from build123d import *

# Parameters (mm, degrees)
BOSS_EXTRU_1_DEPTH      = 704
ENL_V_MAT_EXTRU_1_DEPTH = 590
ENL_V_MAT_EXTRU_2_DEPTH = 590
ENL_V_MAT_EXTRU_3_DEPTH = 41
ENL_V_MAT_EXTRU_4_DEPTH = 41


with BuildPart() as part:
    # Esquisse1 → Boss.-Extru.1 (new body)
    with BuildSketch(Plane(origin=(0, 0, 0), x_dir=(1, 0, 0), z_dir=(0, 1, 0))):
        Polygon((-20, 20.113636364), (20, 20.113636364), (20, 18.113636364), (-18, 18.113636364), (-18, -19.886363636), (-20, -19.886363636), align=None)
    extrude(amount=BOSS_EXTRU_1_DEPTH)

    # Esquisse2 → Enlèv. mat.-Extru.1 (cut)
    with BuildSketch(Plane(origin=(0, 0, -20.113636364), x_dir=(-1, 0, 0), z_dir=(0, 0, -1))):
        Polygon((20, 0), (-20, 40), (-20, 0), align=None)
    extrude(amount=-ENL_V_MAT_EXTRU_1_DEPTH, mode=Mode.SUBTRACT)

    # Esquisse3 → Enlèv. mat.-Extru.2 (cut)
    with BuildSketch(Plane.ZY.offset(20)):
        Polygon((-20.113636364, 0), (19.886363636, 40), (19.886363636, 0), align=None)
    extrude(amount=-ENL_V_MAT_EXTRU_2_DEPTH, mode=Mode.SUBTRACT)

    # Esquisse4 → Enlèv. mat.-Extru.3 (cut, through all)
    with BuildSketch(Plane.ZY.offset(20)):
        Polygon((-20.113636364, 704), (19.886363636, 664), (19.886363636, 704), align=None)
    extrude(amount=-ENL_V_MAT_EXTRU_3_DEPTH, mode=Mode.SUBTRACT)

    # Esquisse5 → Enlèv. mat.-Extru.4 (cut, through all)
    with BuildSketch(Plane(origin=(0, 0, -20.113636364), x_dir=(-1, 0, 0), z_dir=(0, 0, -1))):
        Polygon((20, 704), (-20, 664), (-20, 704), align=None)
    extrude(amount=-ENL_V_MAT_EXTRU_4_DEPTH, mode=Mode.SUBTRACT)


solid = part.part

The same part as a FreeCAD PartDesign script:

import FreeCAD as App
import Part
import Sketcher
from FreeCAD import Vector
Q = App.Units.Quantity

doc = App.newDocument("Part")
params = doc.addObject("Spreadsheet::Sheet", "Params")
for row, (alias, value) in enumerate([
    ("sketch1_width", "40 mm"),
    ("sketch1_width2", "2 mm"),
    ("pad1_length", "704 mm"),
    ("sketch2_width", "40 mm"),
    ("pocket1_length", "590 mm"),
    ("sketch3_width", "40 mm"),
    ("pocket2_length", "590 mm"),
    ("sketch4_width", "40 mm"),
    ("sketch5_width", "40 mm"),
], start=1):
    params.set(f"A{row}", alias)
    params.set(f"B{row}", "=" + value)
    params.setAlias(f"B{row}", alias)

body = doc.addObject("PartDesign::Body", "Body")

# Sketch on XZ plane
sketch1 = doc.addObject("Sketcher::SketchObject", "Sketch")
body.addObject(sketch1)
sketch1.AttachmentSupport = (doc.XZ_Plane, [""])
sketch1.MapMode = "FlatFace"
sketch1.addGeometry([
    Part.LineSegment(Vector(20, -20.1, 0), Vector(-20, -20.1, 0)),  # 0
    Part.LineSegment(Vector(-20, -20.1, 0), Vector(-20, 19.9, 0)),  # 1
    Part.LineSegment(Vector(-20, 19.9, 0), Vector(-18, 19.9, 0)),  # 2
    Part.LineSegment(Vector(-18, 19.9, 0), Vector(-18, -18.1, 0)),  # 3
    Part.LineSegment(Vector(-18, -18.1, 0), Vector(20, -18.1, 0)),  # 4
    Part.LineSegment(Vector(20, -18.1, 0), Vector(20, -20.1, 0)),  # 5
], False)
sketch1.addConstraint([
    Sketcher.Constraint("Coincident", 0, 2, 1, 1),
    Sketcher.Constraint("Coincident", 1, 2, 2, 1),
    Sketcher.Constraint("Coincident", 2, 2, 3, 1),
    Sketcher.Constraint("Coincident", 3, 2, 4, 1),
    Sketcher.Constraint("Coincident", 4, 2, 5, 1),
    Sketcher.Constraint("Coincident", 5, 2, 0, 1),
    Sketcher.Constraint("Horizontal", 0),
    Sketcher.Constraint("Vertical", 1),
    Sketcher.Constraint("Horizontal", 2),
    Sketcher.Constraint("Vertical", 3),
    Sketcher.Constraint("Horizontal", 4),
    Sketcher.Constraint("Vertical", 5),
    Sketcher.Constraint("Equal", 0, 1),
    Sketcher.Constraint("Equal", 4, 3),
    Sketcher.Constraint("DistanceX", 0, 2, 0, 1, Q("40 mm")),
    Sketcher.Constraint("DistanceX", 2, 1, 2, 2, Q("2 mm")),
    Sketcher.Constraint("DistanceX", 0, 2, -1, 1, Q("20 mm")),
    Sketcher.Constraint("DistanceY", 0, 2, -1, 1, Q("20.113636 mm")),
])
sketch1.setExpression("Constraints[14]", "Params.sketch1_width")
sketch1.setExpression("Constraints[15]", "Params.sketch1_width2")
pad1 = doc.addObject("PartDesign::Pad", "Pad")
body.addObject(pad1)
pad1.Profile = sketch1
pad1.setExpression("Length", "Params.pad1_length")
pad1.Reversed = True

# Sketch on XY plane
sketch2 = doc.addObject("Sketcher::SketchObject", "Sketch001")
body.addObject(sketch2)
sketch2.AttachmentSupport = (doc.XY_Plane, [""])
sketch2.MapMode = "FlatFace"
sketch2.AttachmentOffset = App.Placement(Vector(0, 0, -20.113636), App.Rotation())
sketch2.addGeometry([
    Part.LineSegment(Vector(-20, 0, 0), Vector(20, 40, 0)),
    Part.LineSegment(Vector(20, 40, 0), Vector(20, 0, 0)),
    Part.LineSegment(Vector(20, 0, 0), Vector(-20, 0, 0)),
], False)
sketch2.addConstraint([
    Sketcher.Constraint("Coincident", 0, 2, 1, 1),
    Sketcher.Constraint("Coincident", 1, 2, 2, 1),
    Sketcher.Constraint("Coincident", 2, 2, 0, 1),
    Sketcher.Constraint("Vertical", 1),
    Sketcher.Constraint("Horizontal", 2),
    Sketcher.Constraint("Symmetric", 1, 2, 2, 2, -1, 1),
    Sketcher.Constraint("Equal", 2, 1),
    Sketcher.Constraint("DistanceX", 2, 2, 2, 1, Q("40 mm")),
])
sketch2.setExpression("Constraints[7]", "Params.sketch2_width")
pocket1 = doc.addObject("PartDesign::Pocket", "Pocket")
body.addObject(pocket1)
pocket1.Profile = sketch2
pocket1.setExpression("Length", "Params.pocket1_length")
pocket1.Reversed = True

# Sketch on YZ plane
sketch3 = doc.addObject("Sketcher::SketchObject", "Sketch002")
body.addObject(sketch3)
sketch3.AttachmentSupport = (doc.YZ_Plane, [""])
sketch3.MapMode = "FlatFace"
sketch3.AttachmentOffset = App.Placement(Vector(0, 0, -20), App.Rotation())
sketch3.addGeometry([
    Part.LineSegment(Vector(40, 20, 0), Vector(0, -20, 0)),
    Part.LineSegment(Vector(0, -20, 0), Vector(0, 20, 0)),
    Part.LineSegment(Vector(0, 20, 0), Vector(40, 20, 0)),
], False)
sketch3.addConstraint([
    Sketcher.Constraint("Coincident", 0, 2, 1, 1),
    Sketcher.Constraint("Coincident", 1, 2, 2, 1),
    Sketcher.Constraint("Coincident", 2, 2, 0, 1),
    Sketcher.Constraint("Vertical", 1),
    Sketcher.Constraint("Horizontal", 2),
    Sketcher.Constraint("PointOnObject", 0, 2, -2),
    Sketcher.Constraint("Equal", 2, 1),
    Sketcher.Constraint("DistanceX", 2, 1, 2, 2, Q("40 mm")),
    Sketcher.Constraint("DistanceY", 0, 2, -1, 1, Q("20.113636 mm")),
])
sketch3.setExpression("Constraints[7]", "Params.sketch3_width")
pocket2 = doc.addObject("PartDesign::Pocket", "Pocket001")
body.addObject(pocket2)
pocket2.Profile = sketch3
pocket2.setExpression("Length", "Params.pocket2_length")
pocket2.Reversed = True

# Sketch on YZ plane
sketch4 = doc.addObject("Sketcher::SketchObject", "Sketch003")
body.addObject(sketch4)
sketch4.AttachmentSupport = (doc.YZ_Plane, [""])
sketch4.MapMode = "FlatFace"
sketch4.AttachmentOffset = App.Placement(Vector(0, 0, -20), App.Rotation())
sketch4.addGeometry([
    Part.LineSegment(Vector(704, -20, 0), Vector(664, 20, 0)),
    Part.LineSegment(Vector(664, 20, 0), Vector(704, 20, 0)),
    Part.LineSegment(Vector(704, 20, 0), Vector(704, -20, 0)),
], False)
sketch4.addConstraint([
    Sketcher.Constraint("Coincident", 0, 2, 1, 1),
    Sketcher.Constraint("Coincident", 1, 2, 2, 1),
    Sketcher.Constraint("Coincident", 2, 2, 0, 1),
    Sketcher.Constraint("Horizontal", 1),
    Sketcher.Constraint("Vertical", 2),
    Sketcher.Constraint("Equal", 1, 2),
    Sketcher.Constraint("DistanceX", 1, 1, 1, 2, Q("40 mm")),
    Sketcher.Constraint("DistanceX", -1, 1, 0, 2, Q("664 mm")),
    Sketcher.Constraint("DistanceY", -1, 1, 0, 2, Q("19.886364 mm")),
])
sketch4.setExpression("Constraints[6]", "Params.sketch4_width")
pocket3 = doc.addObject("PartDesign::Pocket", "Pocket002")
body.addObject(pocket3)
pocket3.Profile = sketch4
pocket3.Type = "ThroughAll"
pocket3.Reversed = True

# Sketch on XY plane
sketch5 = doc.addObject("Sketcher::SketchObject", "Sketch004")
body.addObject(sketch5)
sketch5.AttachmentSupport = (doc.XY_Plane, [""])
sketch5.MapMode = "FlatFace"
sketch5.AttachmentOffset = App.Placement(Vector(0, 0, -20.113636), App.Rotation())
sketch5.addGeometry([
    Part.LineSegment(Vector(20, 664, 0), Vector(-20, 704, 0)),
    Part.LineSegment(Vector(-20, 704, 0), Vector(20, 704, 0)),
    Part.LineSegment(Vector(20, 704, 0), Vector(20, 664, 0)),
], False)
sketch5.addConstraint([
    Sketcher.Constraint("Coincident", 0, 2, 1, 1),
    Sketcher.Constraint("Coincident", 1, 2, 2, 1),
    Sketcher.Constraint("Coincident", 2, 2, 0, 1),
    Sketcher.Constraint("Horizontal", 1),
    Sketcher.Constraint("Vertical", 2),
    Sketcher.Constraint("Equal", 1, 2),
    Sketcher.Constraint("DistanceX", 1, 1, 1, 2, Q("40 mm")),
    Sketcher.Constraint("DistanceX", 0, 2, -1, 1, Q("20 mm")),
    Sketcher.Constraint("DistanceY", -1, 1, 0, 2, Q("704 mm")),
])
sketch5.setExpression("Constraints[6]", "Params.sketch5_width")
pocket4 = doc.addObject("PartDesign::Pocket", "Pocket003")
body.addObject(pocket4)
pocket4.Profile = sketch5
pocket4.Type = "ThroughAll"
pocket4.Reversed = True

doc.recompute()
